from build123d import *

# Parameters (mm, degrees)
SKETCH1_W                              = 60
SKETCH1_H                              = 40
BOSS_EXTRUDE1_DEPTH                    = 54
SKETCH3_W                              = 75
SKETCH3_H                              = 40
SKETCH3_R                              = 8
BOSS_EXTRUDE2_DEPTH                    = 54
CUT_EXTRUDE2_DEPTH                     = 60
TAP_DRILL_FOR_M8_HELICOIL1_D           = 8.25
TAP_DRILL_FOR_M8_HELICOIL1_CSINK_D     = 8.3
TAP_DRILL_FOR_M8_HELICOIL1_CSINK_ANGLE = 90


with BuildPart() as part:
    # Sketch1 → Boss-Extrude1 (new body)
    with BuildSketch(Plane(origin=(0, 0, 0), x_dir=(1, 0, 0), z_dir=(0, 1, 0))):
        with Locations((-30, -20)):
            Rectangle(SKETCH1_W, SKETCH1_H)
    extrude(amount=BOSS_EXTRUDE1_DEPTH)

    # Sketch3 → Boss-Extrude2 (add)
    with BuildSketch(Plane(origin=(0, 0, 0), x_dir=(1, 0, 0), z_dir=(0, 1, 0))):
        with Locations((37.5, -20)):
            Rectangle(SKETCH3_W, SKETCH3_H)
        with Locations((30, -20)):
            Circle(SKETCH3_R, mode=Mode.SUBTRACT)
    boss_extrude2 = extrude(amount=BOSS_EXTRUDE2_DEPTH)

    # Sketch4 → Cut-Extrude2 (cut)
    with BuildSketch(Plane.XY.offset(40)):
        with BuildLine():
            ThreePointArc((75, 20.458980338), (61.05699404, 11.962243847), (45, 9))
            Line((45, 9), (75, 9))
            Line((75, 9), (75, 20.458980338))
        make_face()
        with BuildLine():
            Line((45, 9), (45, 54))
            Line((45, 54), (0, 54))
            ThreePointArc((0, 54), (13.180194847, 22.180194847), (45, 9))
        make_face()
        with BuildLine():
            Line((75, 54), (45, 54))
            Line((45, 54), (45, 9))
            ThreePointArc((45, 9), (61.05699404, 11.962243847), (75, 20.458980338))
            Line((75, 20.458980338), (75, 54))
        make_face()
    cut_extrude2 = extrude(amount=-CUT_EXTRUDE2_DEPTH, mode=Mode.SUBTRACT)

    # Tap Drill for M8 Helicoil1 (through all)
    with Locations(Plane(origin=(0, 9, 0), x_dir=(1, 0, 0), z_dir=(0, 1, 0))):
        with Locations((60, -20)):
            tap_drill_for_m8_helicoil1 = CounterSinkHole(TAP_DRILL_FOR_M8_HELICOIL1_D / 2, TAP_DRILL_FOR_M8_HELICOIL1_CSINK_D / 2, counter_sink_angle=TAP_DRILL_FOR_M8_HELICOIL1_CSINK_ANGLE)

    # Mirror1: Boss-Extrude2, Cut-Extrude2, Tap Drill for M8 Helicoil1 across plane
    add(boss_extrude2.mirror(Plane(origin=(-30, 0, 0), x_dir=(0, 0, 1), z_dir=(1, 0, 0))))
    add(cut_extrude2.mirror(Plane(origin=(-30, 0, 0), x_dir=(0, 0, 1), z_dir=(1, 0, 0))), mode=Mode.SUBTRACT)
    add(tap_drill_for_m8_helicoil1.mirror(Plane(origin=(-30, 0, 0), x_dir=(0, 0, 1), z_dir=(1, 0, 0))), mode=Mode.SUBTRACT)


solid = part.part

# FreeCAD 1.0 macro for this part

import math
import FreeCAD as App
import Part
import Sketcher
from FreeCAD import Vector
Q = App.Units.Quantity


def add_polygon(sketch, points):
    """Adds a closed chain of lines whose ends are joined by coincident constraints."""
    first, n = sketch.GeometryCount, len(points)
    for a, b in zip(points, points[1:] + points[:1]):
        sketch.addGeometry(Part.LineSegment(App.Vector(*a, 0), App.Vector(*b, 0)), False)
    for i in range(n):
        sketch.addConstraint(Sketcher.Constraint("Coincident", first + i, 2, first + (i + 1) % n, 1))

doc = App.newDocument("Part")
body = doc.addObject("PartDesign::Body", "Body")

# Sketch on XZ plane
sketch1 = body.newObject("Sketcher::SketchObject", "Sketch")
sketch1.AttachmentSupport = (doc.getObject("XZ_Plane"), [""])
sketch1.MapMode = "FlatFace"
add_polygon(sketch1, [(-60, 0), (-60, 40), (0, 40), (0, 0)])  # lines 0-3
sketch1.addConstraint([
    Sketcher.Constraint("Vertical", 0),
    Sketcher.Constraint("Horizontal", 1),
    Sketcher.Constraint("Vertical", 2),
    Sketcher.Constraint("Horizontal", 3),
    Sketcher.Constraint("Coincident", 2, 2, -1, 1),
    Sketcher.Constraint("DistanceX", 1, 1, 1, 2, Q("60 mm")),
    Sketcher.Constraint("DistanceY", 0, 1, 0, 2, Q("40 mm")),
])
pad1 = body.newObject("PartDesign::Pad", "Pad")
pad1.Profile = sketch1
pad1.Length = 54
pad1.Reversed = True

# Sketch on XZ plane
sketch2 = body.newObject("Sketcher::SketchObject", "Sketch001")
sketch2.AttachmentSupport = (doc.getObject("XZ_Plane"), [""])
sketch2.MapMode = "FlatFace"
add_polygon(sketch2, [(0, 0), (0, 40), (75, 40), (75, 0)])  # lines 0-3
sketch2.addGeometry(Part.Circle(Vector(30, 20, 0), Vector(0, 0, 1), 8), False)  # 4
sketch2.addConstraint([
    Sketcher.Constraint("Vertical", 0),
    Sketcher.Constraint("Horizontal", 1),
    Sketcher.Constraint("Vertical", 2),
    Sketcher.Constraint("Horizontal", 3),
    Sketcher.Constraint("Coincident", 3, 2, -1, 1),
    Sketcher.Constraint("Diameter", 4, Q("16 mm")),
    Sketcher.Constraint("DistanceX", 1, 1, 1, 2, Q("75 mm")),
    Sketcher.Constraint("DistanceY", 0, 1, 0, 2, Q("40 mm")),
    Sketcher.Constraint("DistanceX", -1, 1, 4, 3, Q("30 mm")),
    Sketcher.Constraint("DistanceY", -1, 1, 4, 3, Q("20 mm")),
])
pad2 = body.newObject("PartDesign::Pad", "Pad001")
pad2.Profile = sketch2
pad2.Length = 54
pad2.Reversed = True

# Sketch on XY plane
sketch3 = body.newObject("Sketcher::SketchObject", "Sketch002")
sketch3.AttachmentSupport = (doc.getObject("XY_Plane"), [""])
sketch3.MapMode = "FlatFace"
sketch3.AttachmentOffset = App.Placement(Vector(0, 0, 40), App.Rotation())
sketch3.addGeometry([
    Part.LineSegment(Vector(45, 9, 0), Vector(75, 9, 0)),
    Part.LineSegment(Vector(75, 9, 0), Vector(75, 54, 0)),
    Part.LineSegment(Vector(75, 54, 0), Vector(0, 54, 0)),
    Part.ArcOfCircle(Part.Circle(Vector(45, 54, 0), Vector(0, 0, 1), 45), math.radians(-180), math.radians(-90)),
], False)
sketch3.addConstraint([
    Sketcher.Constraint("Coincident", 0, 2, 1, 1),
    Sketcher.Constraint("Coincident", 1, 2, 2, 1),
    Sketcher.Constraint("Coincident", 2, 2, 3, 1),
    Sketcher.Constraint("Tangent", 3, 2, 0, 1),
    Sketcher.Constraint("Horizontal", 0),
    Sketcher.Constraint("Vertical", 1),
    Sketcher.Constraint("Horizontal", 2),
    Sketcher.Constraint("PointOnObject", 2, 2, -2),
    Sketcher.Constraint("Horizontal", 3, 3, 1, 2),
    Sketcher.Constraint("Radius", 3, Q("45 mm")),
    Sketcher.Constraint("DistanceX", 0, 1, 0, 2, Q("30 mm")),
    Sketcher.Constraint("DistanceY", -1, 1, 3, 3, Q("54 mm")),
])
pocket1 = body.newObject("PartDesign::Pocket", "Pocket")
pocket1.Profile = sketch3
pocket1.Length = 60

# Sketch on XZ plane
sketch4 = body.newObject("Sketcher::SketchObject", "Sketch003")
sketch4.AttachmentSupport = (doc.getObject("XZ_Plane"), [""])
sketch4.MapMode = "FlatFace"
sketch4.AttachmentOffset = App.Placement(Vector(0, 0, -9), App.Rotation())
sketch4.addGeometry(Part.Circle(Vector(60, 20, 0), Vector(0, 0, 1), 4.1), False)
sketch4.addConstraint([
    Sketcher.Constraint("Diameter", 0, Q("8.25 mm")),
    Sketcher.Constraint("DistanceX", -1, 1, 0, 3, Q("60 mm")),
    Sketcher.Constraint("DistanceY", -1, 1, 0, 3, Q("20 mm")),
])
doc.recompute()
hole = body.newObject("PartDesign::Hole", "Hole")
hole.Profile = sketch4
hole.ThreadType = "None"
hole.Diameter = 8.25
hole.DepthType = "ThroughAll"
hole.HoleCutType = "Countersink"
hole.HoleCutDiameter = 8.3
hole.HoleCutCountersinkAngle = 90
hole.Reversed = True
doc.recompute()

datumplane = body.newObject("PartDesign::Plane", "DatumPlane")
datumplane.AttachmentSupport = (doc.getObject("YZ_Plane"), [""])
datumplane.MapMode = "FlatFace"
datumplane.AttachmentOffset = App.Placement(Vector(0, 0, -30), App.Rotation())
mirrored = body.newObject("PartDesign::Mirrored", "Mirrored")
mirrored.Originals = [pad2, pocket1, hole]
mirrored.MirrorPlane = (datumplane, [""])
body.Tip = mirrored

doc.recompute()
